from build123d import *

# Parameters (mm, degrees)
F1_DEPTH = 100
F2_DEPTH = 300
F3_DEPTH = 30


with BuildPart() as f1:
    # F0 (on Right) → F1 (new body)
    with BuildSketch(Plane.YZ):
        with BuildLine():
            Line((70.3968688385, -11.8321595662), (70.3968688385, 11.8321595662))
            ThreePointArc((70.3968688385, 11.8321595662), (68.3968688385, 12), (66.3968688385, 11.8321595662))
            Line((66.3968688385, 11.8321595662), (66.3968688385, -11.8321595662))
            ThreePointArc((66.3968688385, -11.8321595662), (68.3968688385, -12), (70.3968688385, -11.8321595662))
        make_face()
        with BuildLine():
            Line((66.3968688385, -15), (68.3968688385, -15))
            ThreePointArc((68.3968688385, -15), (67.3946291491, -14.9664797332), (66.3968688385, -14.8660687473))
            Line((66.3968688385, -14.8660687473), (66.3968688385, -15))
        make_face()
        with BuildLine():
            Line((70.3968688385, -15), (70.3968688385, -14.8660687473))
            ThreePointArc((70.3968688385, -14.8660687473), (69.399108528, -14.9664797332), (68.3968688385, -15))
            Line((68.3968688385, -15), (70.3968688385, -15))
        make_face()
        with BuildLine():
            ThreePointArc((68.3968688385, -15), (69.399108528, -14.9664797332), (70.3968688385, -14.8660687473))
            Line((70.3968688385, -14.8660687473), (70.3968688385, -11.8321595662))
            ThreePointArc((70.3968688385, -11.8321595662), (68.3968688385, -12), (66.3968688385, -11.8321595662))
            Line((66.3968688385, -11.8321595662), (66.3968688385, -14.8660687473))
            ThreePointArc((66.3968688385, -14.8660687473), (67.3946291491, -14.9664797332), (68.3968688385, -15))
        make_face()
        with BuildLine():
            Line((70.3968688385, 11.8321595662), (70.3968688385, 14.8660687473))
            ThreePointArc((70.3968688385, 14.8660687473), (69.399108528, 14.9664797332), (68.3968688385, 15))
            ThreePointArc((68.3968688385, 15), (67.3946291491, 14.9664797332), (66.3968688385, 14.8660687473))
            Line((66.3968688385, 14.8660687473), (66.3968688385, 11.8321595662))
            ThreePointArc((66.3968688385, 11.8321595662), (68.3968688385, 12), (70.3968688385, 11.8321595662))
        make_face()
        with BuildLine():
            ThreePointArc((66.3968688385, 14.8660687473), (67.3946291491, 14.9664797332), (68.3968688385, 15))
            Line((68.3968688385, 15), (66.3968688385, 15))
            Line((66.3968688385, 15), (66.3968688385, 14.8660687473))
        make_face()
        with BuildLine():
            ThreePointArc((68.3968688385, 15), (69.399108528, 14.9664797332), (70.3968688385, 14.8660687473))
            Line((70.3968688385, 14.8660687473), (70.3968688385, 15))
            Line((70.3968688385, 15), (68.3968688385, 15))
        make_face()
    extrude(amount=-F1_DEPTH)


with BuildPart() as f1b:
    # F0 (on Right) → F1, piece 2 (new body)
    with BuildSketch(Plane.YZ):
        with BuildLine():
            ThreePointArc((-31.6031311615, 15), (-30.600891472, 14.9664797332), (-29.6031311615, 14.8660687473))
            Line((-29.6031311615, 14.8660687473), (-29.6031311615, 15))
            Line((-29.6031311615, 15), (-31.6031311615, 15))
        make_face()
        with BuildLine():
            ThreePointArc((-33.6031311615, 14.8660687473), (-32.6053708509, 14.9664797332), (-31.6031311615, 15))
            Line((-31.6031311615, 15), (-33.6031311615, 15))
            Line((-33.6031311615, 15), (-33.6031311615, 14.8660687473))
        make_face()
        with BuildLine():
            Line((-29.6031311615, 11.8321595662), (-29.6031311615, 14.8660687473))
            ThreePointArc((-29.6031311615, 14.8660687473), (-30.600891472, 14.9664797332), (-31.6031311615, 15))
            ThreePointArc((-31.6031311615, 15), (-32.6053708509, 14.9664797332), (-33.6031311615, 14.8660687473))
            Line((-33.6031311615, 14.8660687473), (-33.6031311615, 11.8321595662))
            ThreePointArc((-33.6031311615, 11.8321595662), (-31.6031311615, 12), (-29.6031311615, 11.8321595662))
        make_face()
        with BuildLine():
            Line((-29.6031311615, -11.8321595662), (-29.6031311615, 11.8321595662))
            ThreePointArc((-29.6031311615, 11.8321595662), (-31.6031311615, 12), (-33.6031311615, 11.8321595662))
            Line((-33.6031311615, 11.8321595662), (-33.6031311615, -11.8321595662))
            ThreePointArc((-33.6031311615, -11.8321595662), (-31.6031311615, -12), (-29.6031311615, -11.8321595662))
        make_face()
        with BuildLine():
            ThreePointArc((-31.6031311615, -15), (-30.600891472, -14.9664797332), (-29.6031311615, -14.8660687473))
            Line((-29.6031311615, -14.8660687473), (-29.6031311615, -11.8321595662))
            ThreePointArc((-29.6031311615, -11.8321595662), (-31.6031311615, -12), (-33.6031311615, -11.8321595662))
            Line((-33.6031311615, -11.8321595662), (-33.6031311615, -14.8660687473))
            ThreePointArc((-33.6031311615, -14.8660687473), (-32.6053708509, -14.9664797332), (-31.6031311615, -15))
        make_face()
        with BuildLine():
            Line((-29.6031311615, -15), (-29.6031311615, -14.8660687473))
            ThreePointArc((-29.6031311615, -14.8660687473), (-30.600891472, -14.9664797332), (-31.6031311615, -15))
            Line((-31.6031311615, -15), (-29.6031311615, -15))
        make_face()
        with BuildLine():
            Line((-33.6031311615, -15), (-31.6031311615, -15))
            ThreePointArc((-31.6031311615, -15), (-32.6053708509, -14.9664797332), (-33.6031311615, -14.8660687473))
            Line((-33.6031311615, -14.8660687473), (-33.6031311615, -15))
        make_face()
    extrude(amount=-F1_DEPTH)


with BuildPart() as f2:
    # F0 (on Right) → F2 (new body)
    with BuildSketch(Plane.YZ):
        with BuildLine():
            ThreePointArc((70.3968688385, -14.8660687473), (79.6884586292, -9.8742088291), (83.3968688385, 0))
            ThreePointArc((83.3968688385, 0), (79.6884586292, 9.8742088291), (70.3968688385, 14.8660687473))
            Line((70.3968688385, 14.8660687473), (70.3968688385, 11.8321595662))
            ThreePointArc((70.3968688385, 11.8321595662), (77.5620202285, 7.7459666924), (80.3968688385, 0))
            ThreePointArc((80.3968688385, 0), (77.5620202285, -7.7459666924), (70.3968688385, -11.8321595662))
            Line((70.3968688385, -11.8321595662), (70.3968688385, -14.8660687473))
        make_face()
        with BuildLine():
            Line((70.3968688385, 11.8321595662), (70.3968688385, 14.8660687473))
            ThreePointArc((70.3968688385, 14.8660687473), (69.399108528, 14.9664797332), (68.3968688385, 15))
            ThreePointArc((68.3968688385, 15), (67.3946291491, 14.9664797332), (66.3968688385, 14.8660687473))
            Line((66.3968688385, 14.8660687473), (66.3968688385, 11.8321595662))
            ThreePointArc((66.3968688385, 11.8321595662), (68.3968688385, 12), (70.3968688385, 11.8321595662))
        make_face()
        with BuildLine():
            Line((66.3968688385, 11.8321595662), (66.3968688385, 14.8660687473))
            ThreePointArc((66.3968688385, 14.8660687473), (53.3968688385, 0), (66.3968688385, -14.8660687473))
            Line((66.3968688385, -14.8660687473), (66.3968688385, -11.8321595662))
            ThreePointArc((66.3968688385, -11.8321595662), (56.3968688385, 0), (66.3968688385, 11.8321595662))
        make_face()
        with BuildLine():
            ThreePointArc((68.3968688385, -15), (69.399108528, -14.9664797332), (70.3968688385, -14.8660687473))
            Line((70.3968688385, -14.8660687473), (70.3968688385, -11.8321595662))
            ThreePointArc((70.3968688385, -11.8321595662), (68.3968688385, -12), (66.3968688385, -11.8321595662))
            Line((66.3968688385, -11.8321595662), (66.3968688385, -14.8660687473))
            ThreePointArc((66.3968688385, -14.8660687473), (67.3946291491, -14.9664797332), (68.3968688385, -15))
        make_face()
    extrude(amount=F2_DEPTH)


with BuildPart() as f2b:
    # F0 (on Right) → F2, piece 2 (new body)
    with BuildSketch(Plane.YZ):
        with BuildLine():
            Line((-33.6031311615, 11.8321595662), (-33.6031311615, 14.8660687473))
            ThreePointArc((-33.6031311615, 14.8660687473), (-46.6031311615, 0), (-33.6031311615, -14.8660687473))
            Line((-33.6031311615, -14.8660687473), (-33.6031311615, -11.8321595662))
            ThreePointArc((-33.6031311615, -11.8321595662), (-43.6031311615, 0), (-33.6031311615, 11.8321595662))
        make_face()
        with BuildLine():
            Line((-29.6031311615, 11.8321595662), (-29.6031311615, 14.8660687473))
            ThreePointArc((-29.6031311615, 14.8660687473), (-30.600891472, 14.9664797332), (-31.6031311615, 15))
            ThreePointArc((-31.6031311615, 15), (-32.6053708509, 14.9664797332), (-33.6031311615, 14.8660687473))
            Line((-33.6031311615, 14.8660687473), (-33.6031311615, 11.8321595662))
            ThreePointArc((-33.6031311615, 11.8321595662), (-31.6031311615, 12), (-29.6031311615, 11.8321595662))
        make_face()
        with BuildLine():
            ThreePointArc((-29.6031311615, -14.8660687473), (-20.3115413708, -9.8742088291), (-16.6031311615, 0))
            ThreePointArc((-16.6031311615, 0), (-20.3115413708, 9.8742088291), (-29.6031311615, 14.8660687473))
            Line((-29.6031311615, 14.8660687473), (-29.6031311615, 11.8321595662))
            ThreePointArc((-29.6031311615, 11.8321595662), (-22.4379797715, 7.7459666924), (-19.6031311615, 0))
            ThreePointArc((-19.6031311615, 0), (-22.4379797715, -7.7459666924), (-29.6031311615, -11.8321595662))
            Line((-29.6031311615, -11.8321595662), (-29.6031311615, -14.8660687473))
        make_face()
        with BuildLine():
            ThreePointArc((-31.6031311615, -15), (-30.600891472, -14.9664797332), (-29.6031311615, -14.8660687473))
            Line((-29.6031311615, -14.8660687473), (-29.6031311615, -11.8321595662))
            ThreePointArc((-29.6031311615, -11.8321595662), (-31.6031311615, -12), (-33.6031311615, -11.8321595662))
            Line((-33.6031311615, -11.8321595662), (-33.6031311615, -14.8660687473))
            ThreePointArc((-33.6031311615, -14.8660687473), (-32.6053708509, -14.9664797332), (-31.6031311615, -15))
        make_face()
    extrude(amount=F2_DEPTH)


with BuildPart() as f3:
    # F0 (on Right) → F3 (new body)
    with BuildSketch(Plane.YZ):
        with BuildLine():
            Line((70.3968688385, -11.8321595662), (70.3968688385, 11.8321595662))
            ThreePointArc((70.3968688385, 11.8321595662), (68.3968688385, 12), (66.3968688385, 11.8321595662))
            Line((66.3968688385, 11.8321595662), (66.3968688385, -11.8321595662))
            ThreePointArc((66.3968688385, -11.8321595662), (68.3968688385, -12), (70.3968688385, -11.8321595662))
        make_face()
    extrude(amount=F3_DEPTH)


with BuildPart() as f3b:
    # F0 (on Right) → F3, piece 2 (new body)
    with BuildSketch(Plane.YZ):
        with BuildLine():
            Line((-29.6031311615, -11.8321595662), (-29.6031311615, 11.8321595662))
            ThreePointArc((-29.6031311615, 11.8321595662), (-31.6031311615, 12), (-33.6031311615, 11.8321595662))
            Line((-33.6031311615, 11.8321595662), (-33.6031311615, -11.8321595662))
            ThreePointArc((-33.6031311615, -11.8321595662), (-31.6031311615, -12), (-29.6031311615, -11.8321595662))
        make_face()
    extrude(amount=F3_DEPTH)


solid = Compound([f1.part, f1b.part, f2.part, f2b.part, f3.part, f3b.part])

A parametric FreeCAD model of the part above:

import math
import FreeCAD as App
import Part
import Sketcher

V = App.Vector
Q = App.Units.Quantity


def add_polygon(sketch, points):
    """Adds a closed chain of lines whose ends are joined by coincident constraints."""
    first, n = sketch.GeometryCount, len(points)
    for a, b in zip(points, points[1:] + points[:1]):
        sketch.addGeometry(Part.LineSegment(App.Vector(*a, 0), App.Vector(*b, 0)), False)
    for i in range(n):
        sketch.addConstraint(Sketcher.Constraint("Coincident", first + i, 2, first + (i + 1) % n, 1))

doc = App.newDocument("Part")
params = doc.addObject("Spreadsheet::Sheet", "Params")
for row, (alias, value) in enumerate([
    ("sketch1_width", "4 mm"),
    ("sketch1_height", "30 mm"),
    ("pad1_length", "100 mm"),
    ("sketch2_width", "4 mm"),
    ("sketch2_height", "30 mm"),
    ("pad2_length", "100 mm"),
    ("sketch3_radius", "15 mm"),
    ("sketch3_radius2", "12 mm"),
    ("pad3_length", "300 mm"),
    ("sketch4_radius", "15 mm"),
    ("sketch4_radius2", "12 mm"),
    ("pad4_length", "300 mm"),
    ("sketch5_radius", "12 mm"),
    ("pad5_length", "30 mm"),
    ("sketch6_radius", "12 mm"),
    ("pad6_length", "30 mm"),
], start=1):
    params.set(f"A{row}", alias)
    params.set(f"B{row}", "=" + value)
    params.setAlias(f"B{row}", alias)

body = doc.addObject("PartDesign::Body", "Body")

sketch1 = body.newObject("Sketcher::SketchObject", "Sketch")
sketch1.AttachmentSupport = (doc.getObject("YZ_Plane"), [""])
sketch1.MapMode = "FlatFace"
add_polygon(sketch1, [(66.396869, -15), (70.396869, -15), (70.396869, 15), (66.396869, 15)])
sketch1.addConstraint([
    Sketcher.Constraint("Horizontal", 0),
    Sketcher.Constraint("Vertical", 1),
    Sketcher.Constraint("Horizontal", 2),
    Sketcher.Constraint("Vertical", 3),
    Sketcher.Constraint("DistanceX", 0, 1, 0, 2, Q("4 mm")),
    Sketcher.Constraint("DistanceY", 1, 1, 1, 2, Q("30 mm")),
    Sketcher.Constraint("DistanceY", 0, 2, -1, 1, Q("15 mm")),
    Sketcher.Constraint("DistanceX", -1, 1, 0, 2, Q("70.396869 mm")),
])
sketch1.setExpression("Constraints[8]", "Params.sketch1_width")
sketch1.setExpression("Constraints[9]", "Params.sketch1_height")
pad1 = body.newObject("PartDesign::Pad", "Pad")
pad1.Profile = sketch1
pad1.setExpression("Length", "Params.pad1_length")
pad1.Reversed = True
body2 = doc.addObject("PartDesign::Body", "Body001")

sketch2 = body2.newObject("Sketcher::SketchObject", "Sketch001")
sketch2.AttachmentSupport = (doc.getObject("YZ_Plane001"), [""])
sketch2.MapMode = "FlatFace"
add_polygon(sketch2, [(-29.603131, 15), (-33.603131, 15), (-33.603131, -15), (-29.603131, -15)])
sketch2.addConstraint([
    Sketcher.Constraint("Horizontal", 0),
    Sketcher.Constraint("Vertical", 1),
    Sketcher.Constraint("Horizontal", 2),
    Sketcher.Constraint("Vertical", 3),
    Sketcher.Constraint("DistanceX", 0, 2, 0, 1, Q("4 mm")),
    Sketcher.Constraint("DistanceY", 1, 2, 1, 1, Q("30 mm")),
    Sketcher.Constraint("DistanceY", -1, 1, 0, 2, Q("15 mm")),
    Sketcher.Constraint("DistanceX", 0, 2, -1, 1, Q("33.603131 mm")),
])
sketch2.setExpression("Constraints[8]", "Params.sketch2_width")
sketch2.setExpression("Constraints[9]", "Params.sketch2_height")
pad2 = body2.newObject("PartDesign::Pad", "Pad001")
pad2.Profile = sketch2
pad2.setExpression("Length", "Params.pad2_length")
pad2.Reversed = True
body3 = doc.addObject("PartDesign::Body", "Body002")

sketch3 = body3.newObject("Sketcher::SketchObject", "Sketch002")
sketch3.AttachmentSupport = (doc.getObject("YZ_Plane002"), [""])
sketch3.MapMode = "FlatFace"
sketch3.addGeometry([
    Part.ArcOfCircle(Part.Circle(V(68.396869, 0, 0), V(0, 0, 1), 15), math.radians(-82.337744), math.radians(0)),
    Part.ArcOfCircle(Part.Circle(V(68.396869, 0, 0), V(0, 0, 1), 15), math.radians(0), math.radians(82.337744)),
    Part.ArcOfCircle(Part.Circle(V(68.396869, 0, 0), V(0, 0, 1), 15), math.radians(82.337744), math.radians(90)),
    Part.ArcOfCircle(Part.Circle(V(68.396869, 0, 0), V(0, 0, 1), 15), math.radians(90), math.radians(97.662256)),
    Part.ArcOfCircle(Part.Circle(V(68.396869, 0, 0), V(0, 0, 1), 15), math.radians(97.662256), math.radians(262.337744)),
    Part.ArcOfCircle(Part.Circle(V(68.396869, 0, 0), V(0, 0, 1), 15), math.radians(-97.662256), math.radians(-90)),
    Part.ArcOfCircle(Part.Circle(V(68.396869, 0, 0), V(0, 0, 1), 15), math.radians(-90), math.radians(-82.337744)),
    Part.ArcOfCircle(Part.Circle(V(68.396869, 0, 0), V(0, 0, 1), 12), math.radians(0), math.radians(80.405932)),
    Part.ArcOfCircle(Part.Circle(V(68.396869, 0, 0), V(0, 0, 1), 12), math.radians(-80.405932), math.radians(0)),
    Part.ArcOfCircle(Part.Circle(V(68.396869, 0, 0), V(0, 0, 1), 12), math.radians(80.405932), math.radians(279.594068)),
], False)
sketch3.addConstraint([
    Sketcher.Constraint("Tangent", 0, 2, 1, 1),
    Sketcher.Constraint("Tangent", 1, 2, 2, 1),
    Sketcher.Constraint("Tangent", 2, 2, 3, 1),
    Sketcher.Constraint("Tangent", 3, 2, 4, 1),
    Sketcher.Constraint("Tangent", 4, 2, 5, 1),
    Sketcher.Constraint("Tangent", 5, 2, 6, 1),
    Sketcher.Constraint("Tangent", 6, 2, 0, 1),
    Sketcher.Constraint("Tangent", 7, 1, 8, 2),
    Sketcher.Constraint("Tangent", 8, 1, 9, 2),
    Sketcher.Constraint("Tangent", 9, 1, 7, 2),
    Sketcher.Constraint("Coincident", 2, 3, 0, 3),
    Sketcher.Constraint("Coincident", 4, 3, 0, 3),
    Sketcher.Constraint("Coincident", 7, 3, 0, 3),
    Sketcher.Constraint("Symmetric", 3, 2, 4, 2, -1),
    Sketcher.Constraint("PointOnObject", 0, 2, -1),
    Sketcher.Constraint("PointOnObject", 7, 1, -1),
    Sketcher.Constraint("Horizontal", 1, 2, 3, 2),
    Sketcher.Constraint("Horizontal", 4, 2, 6, 2),
    Sketcher.Constraint("Vertical", 9, 3, 2, 2),
    Sketcher.Constraint("Vertical", 2, 2, 5, 2),
    Sketcher.Constraint("Vertical", 6, 2, 8, 1),
    Sketcher.Constraint("Vertical", 8, 1, 9, 1),
    Sketcher.Constraint("Radius", 0, Q("15 mm")),
    Sketcher.Constraint("Radius", 7, Q("12 mm")),
    Sketcher.Constraint("DistanceX", 5, 3, 1, 2, Q("2 mm")),
    Sketcher.Constraint("DistanceX", -1, 1, 0, 3, Q("68.396869 mm")),
])
sketch3.setExpression("Constraints[22]", "Params.sketch3_radius")
sketch3.setExpression("Constraints[23]", "Params.sketch3_radius2")
pad3 = body3.newObject("PartDesign::Pad", "Pad002")
pad3.Profile = sketch3
pad3.setExpression("Length", "Params.pad3_length")
body4 = doc.addObject("PartDesign::Body", "Body003")

sketch4 = body4.newObject("Sketcher::SketchObject", "Sketch003")
sketch4.AttachmentSupport = (doc.getObject("YZ_Plane003"), [""])
sketch4.MapMode = "FlatFace"
sketch4.addGeometry([
    Part.ArcOfCircle(Part.Circle(V(-31.603131, 0, 0), V(0, 0, 1), 15), math.radians(97.662256), math.radians(262.337744)),
    Part.ArcOfCircle(Part.Circle(V(-31.603131, 0, 0), V(0, 0, 1), 15), math.radians(-97.662256), math.radians(-90)),
    Part.ArcOfCircle(Part.Circle(V(-31.603131, 0, 0), V(0, 0, 1), 15), math.radians(-90), math.radians(-82.337744)),
    Part.ArcOfCircle(Part.Circle(V(-31.603131, 0, 0), V(0, 0, 1), 15), math.radians(-82.337744), math.radians(0)),
    Part.ArcOfCircle(Part.Circle(V(-31.603131, 0, 0), V(0, 0, 1), 15), math.radians(0), math.radians(82.337744)),
    Part.ArcOfCircle(Part.Circle(V(-31.603131, 0, 0), V(0, 0, 1), 15), math.radians(82.337744), math.radians(90)),
    Part.ArcOfCircle(Part.Circle(V(-31.603131, 0, 0), V(0, 0, 1), 15), math.radians(90), math.radians(97.662256)),
    Part.ArcOfCircle(Part.Circle(V(-31.603131, 0, 0), V(0, 0, 1), 12), math.radians(0), math.radians(80.405932)),
    Part.ArcOfCircle(Part.Circle(V(-31.603131, 0, 0), V(0, 0, 1), 12), math.radians(-80.405932), math.radians(0)),
    Part.ArcOfCircle(Part.Circle(V(-31.603131, 0, 0), V(0, 0, 1), 12), math.radians(80.405932), math.radians(279.594068)),
], False)
sketch4.addConstraint([
    Sketcher.Constraint("Tangent", 0, 2, 1, 1),
    Sketcher.Constraint("Tangent", 1, 2, 2, 1),
    Sketcher.Constraint("Tangent", 2, 2, 3, 1),
    Sketcher.Constraint("Tangent", 3, 2, 4, 1),
    Sketcher.Constraint("Tangent", 4, 2, 5, 1),
    Sketcher.Constraint("Tangent", 5, 2, 6, 1),
    Sketcher.Constraint("Tangent", 6, 2, 0, 1),
    Sketcher.Constraint("Tangent", 7, 1, 8, 2),
    Sketcher.Constraint("Tangent", 8, 1, 9, 2),
    Sketcher.Constraint("Tangent", 9, 1, 7, 2),
    Sketcher.Constraint("Coincident", 2, 3, 0, 3),
    Sketcher.Constraint("Coincident", 4, 3, 0, 3),
    Sketcher.Constraint("Coincident", 7, 3, 0, 3),
    Sketcher.Constraint("Symmetric", 2, 2, 4, 2, -1),
    Sketcher.Constraint("PointOnObject", 3, 2, -1),
    Sketcher.Constraint("PointOnObject", 7, 1, -1),
    Sketcher.Constraint("Horizontal", 0, 2, 2, 2),
    Sketcher.Constraint("Horizontal", 4, 2, 6, 2),
    Sketcher.Constraint("Vertical", 9, 3, 1, 2),
    Sketcher.Constraint("Vertical", 1, 2, 5, 2),
    Sketcher.Constraint("Vertical", 4, 2, 8, 1),
    Sketcher.Constraint("Vertical", 8, 1, 9, 1),
    Sketcher.Constraint("Radius", 0, Q("15 mm")),
    Sketcher.Constraint("Radius", 7, Q("12 mm")),
    Sketcher.Constraint("DistanceX", 0, 2, 6, 3, Q("2 mm")),
    Sketcher.Constraint("DistanceX", 0, 3, -1, 1, Q("31.603131 mm")),
])
sketch4.setExpression("Constraints[22]", "Params.sketch4_radius")
sketch4.setExpression("Constraints[23]", "Params.sketch4_radius2")
pad4 = body4.newObject("PartDesign::Pad", "Pad003")
pad4.Profile = sketch4
pad4.setExpression("Length", "Params.pad4_length")
body5 = doc.addObject("PartDesign::Body", "Body004")

sketch5 = body5.newObject("Sketcher::SketchObject", "Sketch004")
sketch5.AttachmentSupport = (doc.getObject("YZ_Plane004"), [""])
sketch5.MapMode = "FlatFace"
sketch5.addGeometry([
    Part.LineSegment(V(70.396869, -11.83216, 0), V(70.396869, 11.83216, 0)),
    Part.ArcOfCircle(Part.Circle(V(68.396869, 0, 0), V(0, 0, 1), 12), math.radians(80.405932), math.radians(99.594068)),
    Part.LineSegment(V(66.396869, 11.83216, 0), V(66.396869, -11.83216, 0)),
    Part.ArcOfCircle(Part.Circle(V(68.396869, 0, 0), V(0, 0, 1), 12), math.radians(-99.594068), math.radians(-80.405932)),
], False)
sketch5.addConstraint([
    Sketcher.Constraint("Coincident", 0, 2, 1, 1),
    Sketcher.Constraint("Coincident", 1, 2, 2, 1),
    Sketcher.Constraint("Coincident", 2, 2, 3, 1),
    Sketcher.Constraint("Coincident", 3, 2, 0, 1),
    Sketcher.Constraint("Vertical", 0),
    Sketcher.Constraint("Vertical", 2),
    Sketcher.Constraint("Coincident", 3, 3, 1, 3),
    Sketcher.Constraint("Equal", 1, 3),
    Sketcher.Constraint("PointOnObject", 1, 3, -1),
    Sketcher.Constraint("Horizontal", 0, 2, 1, 2),
    Sketcher.Constraint("Radius", 1, Q("12 mm")),
    Sketcher.Constraint("DistanceX", 1, 3, 0, 2, Q("2 mm")),
    Sketcher.Constraint("DistanceX", -1, 1, 1, 3, Q("68.396869 mm")),
])
sketch5.setExpression("Constraints[10]", "Params.sketch5_radius")
pad5 = body5.newObject("PartDesign::Pad", "Pad004")
pad5.Profile = sketch5
pad5.setExpression("Length", "Params.pad5_length")
body6 = doc.addObject("PartDesign::Body", "Body005")

sketch6 = body6.newObject("Sketcher::SketchObject", "Sketch005")
sketch6.AttachmentSupport = (doc.getObject("YZ_Plane005"), [""])
sketch6.MapMode = "FlatFace"
sketch6.addGeometry([
    Part.LineSegment(V(-29.603131, -11.83216, 0), V(-29.603131, 11.83216, 0)),
    Part.ArcOfCircle(Part.Circle(V(-31.603131, 0, 0), V(0, 0, 1), 12), math.radians(80.405932), math.radians(99.594068)),
    Part.LineSegment(V(-33.603131, 11.83216, 0), V(-33.603131, -11.83216, 0)),
    Part.ArcOfCircle(Part.Circle(V(-31.603131, 0, 0), V(0, 0, 1), 12), math.radians(-99.594068), math.radians(-80.405932)),
], False)
sketch6.addConstraint([
    Sketcher.Constraint("Coincident", 0, 2, 1, 1),
    Sketcher.Constraint("Coincident", 1, 2, 2, 1),
    Sketcher.Constraint("Coincident", 2, 2, 3, 1),
    Sketcher.Constraint("Coincident", 3, 2, 0, 1),
    Sketcher.Constraint("Vertical", 0),
    Sketcher.Constraint("Vertical", 2),
    Sketcher.Constraint("Coincident", 3, 3, 1, 3),
    Sketcher.Constraint("Equal", 1, 3),
    Sketcher.Constraint("PointOnObject", 1, 3, -1),
    Sketcher.Constraint("Horizontal", 0, 2, 1, 2),
    Sketcher.Constraint("Radius", 1, Q("12 mm")),
    Sketcher.Constraint("DistanceX", 1, 3, 0, 2, Q("2 mm")),
    Sketcher.Constraint("DistanceX", 1, 3, -1, 1, Q("31.603131 mm")),
])
sketch6.setExpression("Constraints[10]", "Params.sketch6_radius")
pad6 = body6.newObject("PartDesign::Pad", "Pad005")
pad6.Profile = sketch6
pad6.setExpression("Length", "Params.pad6_length")

doc.recompute()
